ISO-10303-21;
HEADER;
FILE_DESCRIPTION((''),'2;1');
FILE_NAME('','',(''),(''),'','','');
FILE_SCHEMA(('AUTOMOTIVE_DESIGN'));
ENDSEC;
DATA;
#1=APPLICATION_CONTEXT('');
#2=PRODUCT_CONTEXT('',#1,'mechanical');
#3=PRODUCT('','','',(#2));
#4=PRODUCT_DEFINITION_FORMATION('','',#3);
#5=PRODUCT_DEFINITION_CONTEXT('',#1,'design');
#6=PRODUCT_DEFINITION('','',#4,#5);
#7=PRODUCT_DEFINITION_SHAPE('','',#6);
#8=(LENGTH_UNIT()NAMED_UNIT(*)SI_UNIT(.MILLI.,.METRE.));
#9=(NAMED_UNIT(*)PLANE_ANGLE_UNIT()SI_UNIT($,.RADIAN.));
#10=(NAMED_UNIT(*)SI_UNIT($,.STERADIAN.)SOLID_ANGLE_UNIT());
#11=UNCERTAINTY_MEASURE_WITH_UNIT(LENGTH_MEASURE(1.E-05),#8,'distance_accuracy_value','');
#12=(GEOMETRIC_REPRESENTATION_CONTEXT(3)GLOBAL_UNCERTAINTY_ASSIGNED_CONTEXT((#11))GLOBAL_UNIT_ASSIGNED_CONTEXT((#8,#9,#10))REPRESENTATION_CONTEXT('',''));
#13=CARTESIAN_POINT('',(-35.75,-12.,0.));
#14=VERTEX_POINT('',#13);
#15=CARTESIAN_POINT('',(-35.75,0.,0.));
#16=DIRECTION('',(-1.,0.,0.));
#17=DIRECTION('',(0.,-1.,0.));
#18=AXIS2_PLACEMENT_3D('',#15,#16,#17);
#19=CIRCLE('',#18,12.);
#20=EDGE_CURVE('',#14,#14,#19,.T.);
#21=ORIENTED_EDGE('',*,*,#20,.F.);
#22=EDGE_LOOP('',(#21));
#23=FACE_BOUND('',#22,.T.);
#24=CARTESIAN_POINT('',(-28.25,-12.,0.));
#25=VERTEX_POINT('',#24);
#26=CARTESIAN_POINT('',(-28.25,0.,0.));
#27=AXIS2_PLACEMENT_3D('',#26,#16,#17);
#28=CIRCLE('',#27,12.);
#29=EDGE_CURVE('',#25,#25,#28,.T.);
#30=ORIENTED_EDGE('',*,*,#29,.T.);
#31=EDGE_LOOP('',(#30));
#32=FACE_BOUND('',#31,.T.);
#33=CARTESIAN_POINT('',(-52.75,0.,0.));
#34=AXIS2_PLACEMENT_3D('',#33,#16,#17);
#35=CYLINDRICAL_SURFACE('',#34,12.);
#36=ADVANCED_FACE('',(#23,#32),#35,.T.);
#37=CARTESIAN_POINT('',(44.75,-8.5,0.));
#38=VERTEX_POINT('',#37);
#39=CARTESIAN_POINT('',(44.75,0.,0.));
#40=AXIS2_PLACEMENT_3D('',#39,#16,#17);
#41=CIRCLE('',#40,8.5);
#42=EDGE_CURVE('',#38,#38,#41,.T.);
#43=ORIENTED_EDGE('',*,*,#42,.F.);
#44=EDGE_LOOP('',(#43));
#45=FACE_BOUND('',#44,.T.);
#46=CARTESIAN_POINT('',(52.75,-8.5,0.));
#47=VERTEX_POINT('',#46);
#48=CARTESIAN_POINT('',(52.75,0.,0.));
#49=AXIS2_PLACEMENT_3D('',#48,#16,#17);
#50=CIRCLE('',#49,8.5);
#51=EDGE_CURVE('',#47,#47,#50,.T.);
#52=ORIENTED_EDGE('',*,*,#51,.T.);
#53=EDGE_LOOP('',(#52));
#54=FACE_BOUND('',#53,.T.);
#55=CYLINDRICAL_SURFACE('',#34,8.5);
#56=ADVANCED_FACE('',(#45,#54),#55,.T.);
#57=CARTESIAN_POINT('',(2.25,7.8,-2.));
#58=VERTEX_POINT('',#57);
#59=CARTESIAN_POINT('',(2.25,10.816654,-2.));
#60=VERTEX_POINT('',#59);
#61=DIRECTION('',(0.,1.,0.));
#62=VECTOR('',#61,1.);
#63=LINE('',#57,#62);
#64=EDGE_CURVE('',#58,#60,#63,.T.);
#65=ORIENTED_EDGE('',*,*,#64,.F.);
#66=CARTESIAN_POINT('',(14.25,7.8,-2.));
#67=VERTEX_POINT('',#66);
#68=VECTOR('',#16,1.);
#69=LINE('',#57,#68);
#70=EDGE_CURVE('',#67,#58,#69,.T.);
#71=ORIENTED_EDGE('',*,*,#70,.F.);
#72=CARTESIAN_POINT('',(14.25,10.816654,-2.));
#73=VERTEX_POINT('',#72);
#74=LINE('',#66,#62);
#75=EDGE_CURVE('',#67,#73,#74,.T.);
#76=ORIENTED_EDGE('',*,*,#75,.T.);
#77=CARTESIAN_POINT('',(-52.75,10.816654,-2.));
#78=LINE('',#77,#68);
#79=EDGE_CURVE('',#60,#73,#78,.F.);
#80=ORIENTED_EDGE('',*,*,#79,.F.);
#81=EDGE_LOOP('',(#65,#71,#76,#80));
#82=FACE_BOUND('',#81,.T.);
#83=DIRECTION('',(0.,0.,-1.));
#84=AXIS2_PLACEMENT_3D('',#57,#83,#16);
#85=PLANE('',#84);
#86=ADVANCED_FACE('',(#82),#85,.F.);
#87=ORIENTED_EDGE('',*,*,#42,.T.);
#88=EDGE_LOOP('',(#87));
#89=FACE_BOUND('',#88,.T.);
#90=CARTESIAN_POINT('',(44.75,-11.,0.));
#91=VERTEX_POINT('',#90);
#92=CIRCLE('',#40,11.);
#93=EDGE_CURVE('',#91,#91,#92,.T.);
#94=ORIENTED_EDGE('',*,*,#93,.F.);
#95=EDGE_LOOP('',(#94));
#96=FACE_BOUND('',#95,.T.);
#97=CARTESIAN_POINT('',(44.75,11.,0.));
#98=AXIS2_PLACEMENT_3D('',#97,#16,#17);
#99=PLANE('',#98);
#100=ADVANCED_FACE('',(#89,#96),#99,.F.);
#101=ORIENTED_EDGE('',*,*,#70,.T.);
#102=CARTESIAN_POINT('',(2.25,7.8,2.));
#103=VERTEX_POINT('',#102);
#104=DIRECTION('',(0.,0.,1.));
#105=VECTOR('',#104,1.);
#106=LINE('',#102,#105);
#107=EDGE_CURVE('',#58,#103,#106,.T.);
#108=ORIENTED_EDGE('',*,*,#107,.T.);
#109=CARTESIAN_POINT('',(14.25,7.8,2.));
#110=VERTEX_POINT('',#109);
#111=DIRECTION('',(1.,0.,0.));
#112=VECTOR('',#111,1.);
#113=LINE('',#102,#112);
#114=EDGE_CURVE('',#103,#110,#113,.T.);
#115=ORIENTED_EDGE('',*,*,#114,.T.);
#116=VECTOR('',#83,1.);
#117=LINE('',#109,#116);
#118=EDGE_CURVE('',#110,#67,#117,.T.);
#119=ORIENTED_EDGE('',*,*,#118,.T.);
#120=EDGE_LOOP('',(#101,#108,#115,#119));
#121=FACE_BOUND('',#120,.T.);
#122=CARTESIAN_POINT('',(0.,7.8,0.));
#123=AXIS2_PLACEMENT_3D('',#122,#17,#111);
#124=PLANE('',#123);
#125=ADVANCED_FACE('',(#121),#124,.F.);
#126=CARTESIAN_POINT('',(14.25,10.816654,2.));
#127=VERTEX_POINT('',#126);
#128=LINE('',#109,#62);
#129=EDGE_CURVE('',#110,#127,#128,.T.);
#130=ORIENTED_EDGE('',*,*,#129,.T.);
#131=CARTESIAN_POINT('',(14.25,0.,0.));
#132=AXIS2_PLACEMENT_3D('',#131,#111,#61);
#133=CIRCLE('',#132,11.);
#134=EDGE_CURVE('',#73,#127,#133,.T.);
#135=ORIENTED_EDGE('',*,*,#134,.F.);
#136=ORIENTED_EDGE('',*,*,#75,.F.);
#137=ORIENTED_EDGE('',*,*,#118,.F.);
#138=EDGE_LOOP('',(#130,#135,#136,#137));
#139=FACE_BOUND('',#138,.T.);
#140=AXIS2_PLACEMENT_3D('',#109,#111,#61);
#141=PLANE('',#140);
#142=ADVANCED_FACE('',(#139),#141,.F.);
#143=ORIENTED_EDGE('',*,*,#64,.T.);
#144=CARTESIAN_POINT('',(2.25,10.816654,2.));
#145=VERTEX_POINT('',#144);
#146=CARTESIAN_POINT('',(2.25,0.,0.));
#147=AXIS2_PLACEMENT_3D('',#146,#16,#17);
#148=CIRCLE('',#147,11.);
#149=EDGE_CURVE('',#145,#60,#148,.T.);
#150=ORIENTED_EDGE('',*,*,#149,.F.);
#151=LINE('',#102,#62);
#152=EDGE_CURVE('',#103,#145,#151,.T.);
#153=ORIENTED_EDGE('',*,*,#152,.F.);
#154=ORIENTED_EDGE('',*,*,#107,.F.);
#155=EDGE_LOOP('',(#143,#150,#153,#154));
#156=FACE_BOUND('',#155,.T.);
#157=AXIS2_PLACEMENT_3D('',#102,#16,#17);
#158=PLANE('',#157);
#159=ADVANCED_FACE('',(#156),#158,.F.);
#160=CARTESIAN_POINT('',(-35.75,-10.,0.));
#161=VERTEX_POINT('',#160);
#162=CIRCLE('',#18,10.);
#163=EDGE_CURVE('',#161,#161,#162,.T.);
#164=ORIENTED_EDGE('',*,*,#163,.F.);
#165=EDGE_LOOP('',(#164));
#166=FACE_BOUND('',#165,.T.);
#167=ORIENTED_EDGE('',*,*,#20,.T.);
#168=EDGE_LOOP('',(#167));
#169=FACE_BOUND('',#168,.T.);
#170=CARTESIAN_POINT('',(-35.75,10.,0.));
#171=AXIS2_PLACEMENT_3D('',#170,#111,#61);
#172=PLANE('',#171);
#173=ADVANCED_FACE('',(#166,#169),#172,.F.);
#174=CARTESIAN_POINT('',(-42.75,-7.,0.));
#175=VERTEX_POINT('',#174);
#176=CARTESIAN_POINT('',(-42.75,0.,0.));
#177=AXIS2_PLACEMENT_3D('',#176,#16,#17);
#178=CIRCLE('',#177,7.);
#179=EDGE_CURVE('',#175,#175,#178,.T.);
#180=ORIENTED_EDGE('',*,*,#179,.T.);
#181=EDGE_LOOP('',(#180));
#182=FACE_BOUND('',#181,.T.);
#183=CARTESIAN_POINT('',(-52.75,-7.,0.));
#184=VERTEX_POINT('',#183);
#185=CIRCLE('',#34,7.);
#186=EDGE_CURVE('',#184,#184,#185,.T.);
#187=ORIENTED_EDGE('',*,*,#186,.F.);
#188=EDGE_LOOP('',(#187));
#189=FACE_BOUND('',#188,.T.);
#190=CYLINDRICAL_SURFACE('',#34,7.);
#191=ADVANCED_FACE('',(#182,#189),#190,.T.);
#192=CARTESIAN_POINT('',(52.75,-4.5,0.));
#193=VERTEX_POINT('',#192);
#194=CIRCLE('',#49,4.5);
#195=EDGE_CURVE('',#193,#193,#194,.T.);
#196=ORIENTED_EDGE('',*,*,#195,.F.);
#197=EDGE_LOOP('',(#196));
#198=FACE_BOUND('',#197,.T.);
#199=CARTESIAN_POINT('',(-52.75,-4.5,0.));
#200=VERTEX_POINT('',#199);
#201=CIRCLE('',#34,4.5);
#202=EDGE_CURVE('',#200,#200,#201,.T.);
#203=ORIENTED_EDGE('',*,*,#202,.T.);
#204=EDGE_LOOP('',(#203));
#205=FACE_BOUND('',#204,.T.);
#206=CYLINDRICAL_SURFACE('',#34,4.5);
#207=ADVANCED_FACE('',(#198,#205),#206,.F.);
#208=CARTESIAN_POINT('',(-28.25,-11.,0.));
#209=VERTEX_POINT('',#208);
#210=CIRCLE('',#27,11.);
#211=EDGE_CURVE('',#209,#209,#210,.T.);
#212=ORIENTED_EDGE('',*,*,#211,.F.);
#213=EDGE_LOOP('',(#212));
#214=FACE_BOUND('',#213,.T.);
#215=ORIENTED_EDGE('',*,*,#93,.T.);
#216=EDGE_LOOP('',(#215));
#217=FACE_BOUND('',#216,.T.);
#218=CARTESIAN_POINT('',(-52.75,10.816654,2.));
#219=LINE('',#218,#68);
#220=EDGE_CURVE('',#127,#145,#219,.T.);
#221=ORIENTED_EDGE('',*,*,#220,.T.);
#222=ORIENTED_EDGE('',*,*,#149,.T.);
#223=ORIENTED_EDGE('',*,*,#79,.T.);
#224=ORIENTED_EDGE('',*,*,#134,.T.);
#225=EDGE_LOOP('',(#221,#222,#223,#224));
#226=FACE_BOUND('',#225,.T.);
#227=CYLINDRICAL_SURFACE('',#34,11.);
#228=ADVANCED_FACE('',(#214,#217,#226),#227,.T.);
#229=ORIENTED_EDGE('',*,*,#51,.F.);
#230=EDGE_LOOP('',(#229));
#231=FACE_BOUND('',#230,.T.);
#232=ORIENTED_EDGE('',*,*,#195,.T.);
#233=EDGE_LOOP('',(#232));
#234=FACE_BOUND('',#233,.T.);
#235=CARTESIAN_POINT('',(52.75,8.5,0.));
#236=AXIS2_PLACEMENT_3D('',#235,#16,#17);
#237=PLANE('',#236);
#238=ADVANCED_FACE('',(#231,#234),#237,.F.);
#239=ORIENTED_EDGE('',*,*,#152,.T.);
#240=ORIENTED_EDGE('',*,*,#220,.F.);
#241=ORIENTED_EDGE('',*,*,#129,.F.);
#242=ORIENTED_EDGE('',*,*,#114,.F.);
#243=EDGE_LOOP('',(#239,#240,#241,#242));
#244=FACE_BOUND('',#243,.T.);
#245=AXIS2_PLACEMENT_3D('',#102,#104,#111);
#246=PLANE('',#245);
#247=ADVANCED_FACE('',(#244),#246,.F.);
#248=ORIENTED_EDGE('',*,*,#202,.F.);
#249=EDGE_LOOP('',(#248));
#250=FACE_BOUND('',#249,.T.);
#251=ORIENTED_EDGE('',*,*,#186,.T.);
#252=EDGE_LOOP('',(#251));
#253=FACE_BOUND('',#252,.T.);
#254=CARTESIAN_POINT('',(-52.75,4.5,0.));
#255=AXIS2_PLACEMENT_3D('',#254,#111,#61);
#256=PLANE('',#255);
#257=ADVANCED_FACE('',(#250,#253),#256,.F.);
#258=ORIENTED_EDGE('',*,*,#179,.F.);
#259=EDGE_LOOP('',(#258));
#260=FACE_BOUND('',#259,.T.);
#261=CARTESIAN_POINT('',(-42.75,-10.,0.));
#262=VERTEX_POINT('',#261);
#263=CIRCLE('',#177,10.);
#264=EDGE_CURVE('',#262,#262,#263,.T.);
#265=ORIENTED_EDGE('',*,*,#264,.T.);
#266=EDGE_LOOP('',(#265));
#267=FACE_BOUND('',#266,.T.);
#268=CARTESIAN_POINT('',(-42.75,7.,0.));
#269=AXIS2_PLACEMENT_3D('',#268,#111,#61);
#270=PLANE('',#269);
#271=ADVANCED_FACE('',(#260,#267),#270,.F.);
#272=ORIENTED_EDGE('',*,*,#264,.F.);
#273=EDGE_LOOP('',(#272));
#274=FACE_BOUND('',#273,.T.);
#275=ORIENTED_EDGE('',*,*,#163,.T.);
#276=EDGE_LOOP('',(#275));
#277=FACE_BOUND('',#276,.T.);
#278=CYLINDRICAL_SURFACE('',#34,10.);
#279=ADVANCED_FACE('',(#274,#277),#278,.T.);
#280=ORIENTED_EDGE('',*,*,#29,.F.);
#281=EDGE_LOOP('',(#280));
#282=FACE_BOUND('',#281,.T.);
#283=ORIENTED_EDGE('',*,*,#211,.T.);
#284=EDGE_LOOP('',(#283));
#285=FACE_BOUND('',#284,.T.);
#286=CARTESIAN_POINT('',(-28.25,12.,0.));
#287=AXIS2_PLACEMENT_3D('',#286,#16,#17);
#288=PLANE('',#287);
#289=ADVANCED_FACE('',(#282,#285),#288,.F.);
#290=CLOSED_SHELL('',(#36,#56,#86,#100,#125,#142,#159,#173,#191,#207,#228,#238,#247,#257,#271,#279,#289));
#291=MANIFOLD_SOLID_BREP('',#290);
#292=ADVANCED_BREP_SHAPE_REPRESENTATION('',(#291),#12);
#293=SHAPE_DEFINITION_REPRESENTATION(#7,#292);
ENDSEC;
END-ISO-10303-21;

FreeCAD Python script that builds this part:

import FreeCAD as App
import Part
import Sketcher
Q = App.Units.Quantity


def add_polygon(sketch, points):
    """Adds a closed chain of lines whose ends are joined by coincident constraints."""
    first, n = sketch.GeometryCount, len(points)
    for a, b in zip(points, points[1:] + points[:1]):
        sketch.addGeometry(Part.LineSegment(App.Vector(*a, 0), App.Vector(*b, 0)), False)
    for i in range(n):
        sketch.addConstraint(Sketcher.Constraint("Coincident", first + i, 2, first + (i + 1) % n, 1))

doc = App.newDocument("Part")
body = doc.addObject("PartDesign::Body", "Body")

# Sketch on XY plane
sketch1 = body.newObject("Sketcher::SketchObject", "Sketch")
sketch1.AttachmentSupport = (doc.getObject("XY_Plane"), [""])
sketch1.MapMode = "FlatFace"
add_polygon(sketch1, [(-52.8, 7), (-52.8, 4.5), (52.8, 4.5), (52.8, 8.5), (44.8, 8.5), (44.8, 11), (-28.2, 11), (-28.2, 12), (-35.8, 12), (-35.8, 10), (-42.8, 10), (-42.8, 7)])  # lines 0-11
sketch1.addConstraint(Sketcher.Constraint("Vertical", 0))
sketch1.addConstraint(Sketcher.Constraint("Horizontal", 1))
sketch1.addConstraint(Sketcher.Constraint("Vertical", 2))
sketch1.addConstraint(Sketcher.Constraint("Horizontal", 3))
sketch1.addConstraint(Sketcher.Constraint("Vertical", 4))
sketch1.addConstraint(Sketcher.Constraint("Horizontal", 5))
sketch1.addConstraint(Sketcher.Constraint("Vertical", 6))
sketch1.addConstraint(Sketcher.Constraint("Horizontal", 7))
sketch1.addConstraint(Sketcher.Constraint("Vertical", 8))
sketch1.addConstraint(Sketcher.Constraint("Horizontal", 9))
sketch1.addConstraint(Sketcher.Constraint("Vertical", 10))
sketch1.addConstraint(Sketcher.Constraint("Horizontal", 11))
sketch1.addConstraint(Sketcher.Constraint("Equal", 0, 4))
sketch1.addConstraint(Sketcher.Constraint("DistanceX", 3, 2, 3, 1, Q("8 mm")))
sketch1.addConstraint(Sketcher.Constraint("DistanceX", 5, 2, 5, 1, Q("73 mm")))
sketch1.addConstraint(Sketcher.Constraint("DistanceX", 9, 2, 9, 1, Q("7 mm")))
sketch1.addConstraint(Sketcher.Constraint("DistanceX", 11, 2, 11, 1, Q("10 mm")))
sketch1.addConstraint(Sketcher.Constraint("DistanceY", 2, 1, 2, 2, Q("4 mm")))
sketch1.addConstraint(Sketcher.Constraint("DistanceY", 6, 1, 6, 2, Q("1 mm")))
sketch1.addConstraint(Sketcher.Constraint("DistanceY", 8, 2, 8, 1, Q("2 mm")))
sketch1.addConstraint(Sketcher.Constraint("DistanceX", 1, 1, 1, 2, Q("105.5 mm")))
sketch1.addConstraint(Sketcher.Constraint("DistanceY", 0, 2, 0, 1, Q("2.5 mm")))
sketch1.addConstraint(Sketcher.Constraint("DistanceY", -1, 1, 4, 2, Q("11 mm")))
sketch1.addConstraint(Sketcher.Constraint("DistanceX", 0, 2, -1, 1, Q("52.75 mm")))
revolution = body.newObject("PartDesign::Revolution", "Revolution")
revolution.Profile = sketch1
revolution.ReferenceAxis = (sketch1, ["H_Axis"])
revolution.Angle = 360

# Sketch on XZ plane
sketch2 = body.newObject("Sketcher::SketchObject", "Sketch001")
sketch2.AttachmentSupport = (doc.getObject("XZ_Plane"), [""])
sketch2.MapMode = "FlatFace"
sketch2.AttachmentOffset = App.Placement(App.Vector(0, 0, -11), App.Rotation())
add_polygon(sketch2, [(2.2, -2), (2.2, 2), (14.2, 2), (14.2, -2)])  # lines 0-3
sketch2.addConstraint(Sketcher.Constraint("Vertical", 0))
sketch2.addConstraint(Sketcher.Constraint("Horizontal", 1))
sketch2.addConstraint(Sketcher.Constraint("Vertical", 2))
sketch2.addConstraint(Sketcher.Constraint("Horizontal", 3))
sketch2.addConstraint(Sketcher.Constraint("DistanceX", 1, 1, 1, 2, Q("12 mm")))
sketch2.addConstraint(Sketcher.Constraint("DistanceY", 0, 1, 0, 2, Q("4 mm")))
sketch2.addConstraint(Sketcher.Constraint("DistanceY", -1, 1, 0, 2, Q("2 mm")))
sketch2.addConstraint(Sketcher.Constraint("DistanceX", -1, 1, 0, 2, Q("2.25 mm")))
pocket1 = body.newObject("PartDesign::Pocket", "Pocket")
pocket1.Profile = sketch2
pocket1.Length = 3.2
pocket1.Reversed = True

doc.recompute()
